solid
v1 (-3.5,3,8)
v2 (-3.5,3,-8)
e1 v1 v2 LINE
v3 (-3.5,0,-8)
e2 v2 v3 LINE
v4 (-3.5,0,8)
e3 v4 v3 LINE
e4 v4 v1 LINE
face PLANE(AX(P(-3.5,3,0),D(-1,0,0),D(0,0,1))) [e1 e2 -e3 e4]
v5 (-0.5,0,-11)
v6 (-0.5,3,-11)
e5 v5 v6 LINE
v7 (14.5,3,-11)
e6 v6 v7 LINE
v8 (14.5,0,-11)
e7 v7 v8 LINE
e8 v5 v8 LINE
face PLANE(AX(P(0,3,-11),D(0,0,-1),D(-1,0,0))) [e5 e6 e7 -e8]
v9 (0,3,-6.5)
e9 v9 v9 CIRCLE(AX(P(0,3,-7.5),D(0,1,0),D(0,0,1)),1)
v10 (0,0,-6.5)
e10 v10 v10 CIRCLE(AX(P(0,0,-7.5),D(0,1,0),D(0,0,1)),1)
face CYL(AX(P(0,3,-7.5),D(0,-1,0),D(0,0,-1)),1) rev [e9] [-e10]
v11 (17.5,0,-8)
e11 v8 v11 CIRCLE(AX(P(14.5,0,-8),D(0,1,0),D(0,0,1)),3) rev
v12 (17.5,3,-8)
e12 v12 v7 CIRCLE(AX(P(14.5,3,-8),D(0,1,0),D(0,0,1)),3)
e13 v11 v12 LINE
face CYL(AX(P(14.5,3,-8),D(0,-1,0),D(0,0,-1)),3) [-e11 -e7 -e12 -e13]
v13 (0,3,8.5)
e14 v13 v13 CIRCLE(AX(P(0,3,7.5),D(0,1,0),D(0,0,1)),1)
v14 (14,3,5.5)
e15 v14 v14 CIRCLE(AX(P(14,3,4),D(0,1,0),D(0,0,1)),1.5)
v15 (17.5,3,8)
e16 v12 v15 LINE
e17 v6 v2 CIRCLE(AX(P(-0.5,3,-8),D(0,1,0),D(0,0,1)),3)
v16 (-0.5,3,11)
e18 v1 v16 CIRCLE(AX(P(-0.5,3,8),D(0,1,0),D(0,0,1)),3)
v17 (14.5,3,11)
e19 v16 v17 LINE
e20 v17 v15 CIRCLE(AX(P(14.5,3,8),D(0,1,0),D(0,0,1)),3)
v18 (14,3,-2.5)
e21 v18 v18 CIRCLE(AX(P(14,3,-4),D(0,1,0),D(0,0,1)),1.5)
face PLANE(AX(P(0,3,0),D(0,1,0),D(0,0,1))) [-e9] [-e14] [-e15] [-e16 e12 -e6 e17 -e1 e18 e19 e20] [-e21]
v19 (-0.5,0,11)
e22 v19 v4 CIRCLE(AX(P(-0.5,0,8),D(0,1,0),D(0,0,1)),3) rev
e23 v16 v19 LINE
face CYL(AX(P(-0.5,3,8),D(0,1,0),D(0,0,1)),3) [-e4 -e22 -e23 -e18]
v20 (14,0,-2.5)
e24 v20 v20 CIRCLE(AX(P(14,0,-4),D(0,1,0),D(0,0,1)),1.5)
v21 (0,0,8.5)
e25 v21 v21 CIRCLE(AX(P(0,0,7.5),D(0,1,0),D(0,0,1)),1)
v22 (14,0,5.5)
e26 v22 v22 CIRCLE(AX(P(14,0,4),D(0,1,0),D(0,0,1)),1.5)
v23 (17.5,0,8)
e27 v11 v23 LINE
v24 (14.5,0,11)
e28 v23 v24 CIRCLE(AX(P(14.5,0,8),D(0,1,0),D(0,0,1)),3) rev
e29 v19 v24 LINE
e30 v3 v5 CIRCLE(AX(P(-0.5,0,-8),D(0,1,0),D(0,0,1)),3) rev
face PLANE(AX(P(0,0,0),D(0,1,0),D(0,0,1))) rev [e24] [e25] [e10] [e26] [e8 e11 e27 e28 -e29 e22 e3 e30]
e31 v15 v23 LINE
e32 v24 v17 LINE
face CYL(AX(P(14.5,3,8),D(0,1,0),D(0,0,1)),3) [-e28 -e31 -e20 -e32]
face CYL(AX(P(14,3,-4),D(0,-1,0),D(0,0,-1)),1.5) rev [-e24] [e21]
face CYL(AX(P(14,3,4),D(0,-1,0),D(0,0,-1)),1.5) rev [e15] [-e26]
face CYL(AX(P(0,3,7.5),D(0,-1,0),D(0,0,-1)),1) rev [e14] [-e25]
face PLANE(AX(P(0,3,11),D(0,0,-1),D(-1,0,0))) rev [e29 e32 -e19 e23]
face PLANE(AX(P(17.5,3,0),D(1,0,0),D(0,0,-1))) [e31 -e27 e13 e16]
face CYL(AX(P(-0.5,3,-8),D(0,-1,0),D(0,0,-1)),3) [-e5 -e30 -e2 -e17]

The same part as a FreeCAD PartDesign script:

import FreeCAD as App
import Part
import Sketcher
from FreeCAD import Vector
Q = App.Units.Quantity


def edges_at(feature, points):
    """Names of the edges that pass closest to the given points."""
    edges = feature.Shape.Edges
    near = lambda p: min(range(len(edges)), key=lambda i: edges[i].distToShape(Part.Vertex(*p))[0])
    return sorted({f"Edge{near(p) + 1}" for p in points})


def add_polygon(sketch, points):
    """Adds a closed chain of lines whose ends are joined by coincident constraints."""
    first, n = sketch.GeometryCount, len(points)
    for a, b in zip(points, points[1:] + points[:1]):
        sketch.addGeometry(Part.LineSegment(App.Vector(*a, 0), App.Vector(*b, 0)), False)
    for i in range(n):
        sketch.addConstraint(Sketcher.Constraint("Coincident", first + i, 2, first + (i + 1) % n, 1))

doc = App.newDocument("Part")
body = doc.addObject("PartDesign::Body", "Body")

# Sketch on XZ plane
sketch1 = body.newObject("Sketcher::SketchObject", "Sketch")
sketch1.AttachmentSupport = (doc.getObject("XZ_Plane"), [""])
sketch1.MapMode = "FlatFace"
add_polygon(sketch1, [(-3.5, -11), (-3.5, 11), (17.5, 11), (17.5, -11)])  # lines 0-3
sketch1.addGeometry(Part.Circle(Vector(0, 7.5, 0), Vector(0, 0, 1), 1), False)  # 4
sketch1.addGeometry(Part.Circle(Vector(0, -7.5, 0), Vector(0, 0, 1), 1), False)  # 5
sketch1.addGeometry(Part.Circle(Vector(14, -4, 0), Vector(0, 0, 1), 1.5), False)  # 6
sketch1.addGeometry(Part.Circle(Vector(14, 4, 0), Vector(0, 0, 1), 1.5), False)  # 7
sketch1.addConstraint([
    Sketcher.Constraint("Vertical", 0),
    Sketcher.Constraint("Horizontal", 1),
    Sketcher.Constraint("Vertical", 2),
    Sketcher.Constraint("Horizontal", 3),
    Sketcher.Constraint("Equal", 4, 5),
    Sketcher.Constraint("Equal", 6, 7),
    Sketcher.Constraint("Symmetric", 4, 3, 5, 3, -1, 1),
    Sketcher.Constraint("Symmetric", 6, 3, 7, 3, -1),
    Sketcher.Constraint("PointOnObject", 4, 3, -2),
    Sketcher.Constraint("Diameter", 4, Q("2 mm")),
    Sketcher.Constraint("Diameter", 6, Q("3 mm")),
    Sketcher.Constraint("DistanceX", 1, 1, 1, 2, Q("21 mm")),
    Sketcher.Constraint("DistanceY", 0, 1, 0, 2, Q("22 mm")),
    Sketcher.Constraint("DistanceX", -1, 1, 6, 3, Q("14 mm")),
    Sketcher.Constraint("DistanceY", 6, 3, -1, 1, Q("4 mm")),
    Sketcher.Constraint("DistanceY", -1, 1, 0, 2, Q("11 mm")),
    Sketcher.Constraint("DistanceY", 5, 3, 4, 3, Q("15 mm")),
    Sketcher.Constraint("DistanceX", 0, 2, -1, 1, Q("3.5 mm")),
])
pad1 = body.newObject("PartDesign::Pad", "Pad")
pad1.Profile = sketch1
pad1.Length = 3
pad1.Reversed = True
doc.recompute()

fillet = body.newObject("PartDesign::Fillet", "Fillet")
fillet.Base = (pad1, edges_at(pad1, [
    (-3.5, 1.5, 11),
    (-3.5, 1.5, -11),
    (17.5, 1.5, -11),
    (17.5, 1.5, 11),
]))
fillet.Radius = 3

doc.recompute()
